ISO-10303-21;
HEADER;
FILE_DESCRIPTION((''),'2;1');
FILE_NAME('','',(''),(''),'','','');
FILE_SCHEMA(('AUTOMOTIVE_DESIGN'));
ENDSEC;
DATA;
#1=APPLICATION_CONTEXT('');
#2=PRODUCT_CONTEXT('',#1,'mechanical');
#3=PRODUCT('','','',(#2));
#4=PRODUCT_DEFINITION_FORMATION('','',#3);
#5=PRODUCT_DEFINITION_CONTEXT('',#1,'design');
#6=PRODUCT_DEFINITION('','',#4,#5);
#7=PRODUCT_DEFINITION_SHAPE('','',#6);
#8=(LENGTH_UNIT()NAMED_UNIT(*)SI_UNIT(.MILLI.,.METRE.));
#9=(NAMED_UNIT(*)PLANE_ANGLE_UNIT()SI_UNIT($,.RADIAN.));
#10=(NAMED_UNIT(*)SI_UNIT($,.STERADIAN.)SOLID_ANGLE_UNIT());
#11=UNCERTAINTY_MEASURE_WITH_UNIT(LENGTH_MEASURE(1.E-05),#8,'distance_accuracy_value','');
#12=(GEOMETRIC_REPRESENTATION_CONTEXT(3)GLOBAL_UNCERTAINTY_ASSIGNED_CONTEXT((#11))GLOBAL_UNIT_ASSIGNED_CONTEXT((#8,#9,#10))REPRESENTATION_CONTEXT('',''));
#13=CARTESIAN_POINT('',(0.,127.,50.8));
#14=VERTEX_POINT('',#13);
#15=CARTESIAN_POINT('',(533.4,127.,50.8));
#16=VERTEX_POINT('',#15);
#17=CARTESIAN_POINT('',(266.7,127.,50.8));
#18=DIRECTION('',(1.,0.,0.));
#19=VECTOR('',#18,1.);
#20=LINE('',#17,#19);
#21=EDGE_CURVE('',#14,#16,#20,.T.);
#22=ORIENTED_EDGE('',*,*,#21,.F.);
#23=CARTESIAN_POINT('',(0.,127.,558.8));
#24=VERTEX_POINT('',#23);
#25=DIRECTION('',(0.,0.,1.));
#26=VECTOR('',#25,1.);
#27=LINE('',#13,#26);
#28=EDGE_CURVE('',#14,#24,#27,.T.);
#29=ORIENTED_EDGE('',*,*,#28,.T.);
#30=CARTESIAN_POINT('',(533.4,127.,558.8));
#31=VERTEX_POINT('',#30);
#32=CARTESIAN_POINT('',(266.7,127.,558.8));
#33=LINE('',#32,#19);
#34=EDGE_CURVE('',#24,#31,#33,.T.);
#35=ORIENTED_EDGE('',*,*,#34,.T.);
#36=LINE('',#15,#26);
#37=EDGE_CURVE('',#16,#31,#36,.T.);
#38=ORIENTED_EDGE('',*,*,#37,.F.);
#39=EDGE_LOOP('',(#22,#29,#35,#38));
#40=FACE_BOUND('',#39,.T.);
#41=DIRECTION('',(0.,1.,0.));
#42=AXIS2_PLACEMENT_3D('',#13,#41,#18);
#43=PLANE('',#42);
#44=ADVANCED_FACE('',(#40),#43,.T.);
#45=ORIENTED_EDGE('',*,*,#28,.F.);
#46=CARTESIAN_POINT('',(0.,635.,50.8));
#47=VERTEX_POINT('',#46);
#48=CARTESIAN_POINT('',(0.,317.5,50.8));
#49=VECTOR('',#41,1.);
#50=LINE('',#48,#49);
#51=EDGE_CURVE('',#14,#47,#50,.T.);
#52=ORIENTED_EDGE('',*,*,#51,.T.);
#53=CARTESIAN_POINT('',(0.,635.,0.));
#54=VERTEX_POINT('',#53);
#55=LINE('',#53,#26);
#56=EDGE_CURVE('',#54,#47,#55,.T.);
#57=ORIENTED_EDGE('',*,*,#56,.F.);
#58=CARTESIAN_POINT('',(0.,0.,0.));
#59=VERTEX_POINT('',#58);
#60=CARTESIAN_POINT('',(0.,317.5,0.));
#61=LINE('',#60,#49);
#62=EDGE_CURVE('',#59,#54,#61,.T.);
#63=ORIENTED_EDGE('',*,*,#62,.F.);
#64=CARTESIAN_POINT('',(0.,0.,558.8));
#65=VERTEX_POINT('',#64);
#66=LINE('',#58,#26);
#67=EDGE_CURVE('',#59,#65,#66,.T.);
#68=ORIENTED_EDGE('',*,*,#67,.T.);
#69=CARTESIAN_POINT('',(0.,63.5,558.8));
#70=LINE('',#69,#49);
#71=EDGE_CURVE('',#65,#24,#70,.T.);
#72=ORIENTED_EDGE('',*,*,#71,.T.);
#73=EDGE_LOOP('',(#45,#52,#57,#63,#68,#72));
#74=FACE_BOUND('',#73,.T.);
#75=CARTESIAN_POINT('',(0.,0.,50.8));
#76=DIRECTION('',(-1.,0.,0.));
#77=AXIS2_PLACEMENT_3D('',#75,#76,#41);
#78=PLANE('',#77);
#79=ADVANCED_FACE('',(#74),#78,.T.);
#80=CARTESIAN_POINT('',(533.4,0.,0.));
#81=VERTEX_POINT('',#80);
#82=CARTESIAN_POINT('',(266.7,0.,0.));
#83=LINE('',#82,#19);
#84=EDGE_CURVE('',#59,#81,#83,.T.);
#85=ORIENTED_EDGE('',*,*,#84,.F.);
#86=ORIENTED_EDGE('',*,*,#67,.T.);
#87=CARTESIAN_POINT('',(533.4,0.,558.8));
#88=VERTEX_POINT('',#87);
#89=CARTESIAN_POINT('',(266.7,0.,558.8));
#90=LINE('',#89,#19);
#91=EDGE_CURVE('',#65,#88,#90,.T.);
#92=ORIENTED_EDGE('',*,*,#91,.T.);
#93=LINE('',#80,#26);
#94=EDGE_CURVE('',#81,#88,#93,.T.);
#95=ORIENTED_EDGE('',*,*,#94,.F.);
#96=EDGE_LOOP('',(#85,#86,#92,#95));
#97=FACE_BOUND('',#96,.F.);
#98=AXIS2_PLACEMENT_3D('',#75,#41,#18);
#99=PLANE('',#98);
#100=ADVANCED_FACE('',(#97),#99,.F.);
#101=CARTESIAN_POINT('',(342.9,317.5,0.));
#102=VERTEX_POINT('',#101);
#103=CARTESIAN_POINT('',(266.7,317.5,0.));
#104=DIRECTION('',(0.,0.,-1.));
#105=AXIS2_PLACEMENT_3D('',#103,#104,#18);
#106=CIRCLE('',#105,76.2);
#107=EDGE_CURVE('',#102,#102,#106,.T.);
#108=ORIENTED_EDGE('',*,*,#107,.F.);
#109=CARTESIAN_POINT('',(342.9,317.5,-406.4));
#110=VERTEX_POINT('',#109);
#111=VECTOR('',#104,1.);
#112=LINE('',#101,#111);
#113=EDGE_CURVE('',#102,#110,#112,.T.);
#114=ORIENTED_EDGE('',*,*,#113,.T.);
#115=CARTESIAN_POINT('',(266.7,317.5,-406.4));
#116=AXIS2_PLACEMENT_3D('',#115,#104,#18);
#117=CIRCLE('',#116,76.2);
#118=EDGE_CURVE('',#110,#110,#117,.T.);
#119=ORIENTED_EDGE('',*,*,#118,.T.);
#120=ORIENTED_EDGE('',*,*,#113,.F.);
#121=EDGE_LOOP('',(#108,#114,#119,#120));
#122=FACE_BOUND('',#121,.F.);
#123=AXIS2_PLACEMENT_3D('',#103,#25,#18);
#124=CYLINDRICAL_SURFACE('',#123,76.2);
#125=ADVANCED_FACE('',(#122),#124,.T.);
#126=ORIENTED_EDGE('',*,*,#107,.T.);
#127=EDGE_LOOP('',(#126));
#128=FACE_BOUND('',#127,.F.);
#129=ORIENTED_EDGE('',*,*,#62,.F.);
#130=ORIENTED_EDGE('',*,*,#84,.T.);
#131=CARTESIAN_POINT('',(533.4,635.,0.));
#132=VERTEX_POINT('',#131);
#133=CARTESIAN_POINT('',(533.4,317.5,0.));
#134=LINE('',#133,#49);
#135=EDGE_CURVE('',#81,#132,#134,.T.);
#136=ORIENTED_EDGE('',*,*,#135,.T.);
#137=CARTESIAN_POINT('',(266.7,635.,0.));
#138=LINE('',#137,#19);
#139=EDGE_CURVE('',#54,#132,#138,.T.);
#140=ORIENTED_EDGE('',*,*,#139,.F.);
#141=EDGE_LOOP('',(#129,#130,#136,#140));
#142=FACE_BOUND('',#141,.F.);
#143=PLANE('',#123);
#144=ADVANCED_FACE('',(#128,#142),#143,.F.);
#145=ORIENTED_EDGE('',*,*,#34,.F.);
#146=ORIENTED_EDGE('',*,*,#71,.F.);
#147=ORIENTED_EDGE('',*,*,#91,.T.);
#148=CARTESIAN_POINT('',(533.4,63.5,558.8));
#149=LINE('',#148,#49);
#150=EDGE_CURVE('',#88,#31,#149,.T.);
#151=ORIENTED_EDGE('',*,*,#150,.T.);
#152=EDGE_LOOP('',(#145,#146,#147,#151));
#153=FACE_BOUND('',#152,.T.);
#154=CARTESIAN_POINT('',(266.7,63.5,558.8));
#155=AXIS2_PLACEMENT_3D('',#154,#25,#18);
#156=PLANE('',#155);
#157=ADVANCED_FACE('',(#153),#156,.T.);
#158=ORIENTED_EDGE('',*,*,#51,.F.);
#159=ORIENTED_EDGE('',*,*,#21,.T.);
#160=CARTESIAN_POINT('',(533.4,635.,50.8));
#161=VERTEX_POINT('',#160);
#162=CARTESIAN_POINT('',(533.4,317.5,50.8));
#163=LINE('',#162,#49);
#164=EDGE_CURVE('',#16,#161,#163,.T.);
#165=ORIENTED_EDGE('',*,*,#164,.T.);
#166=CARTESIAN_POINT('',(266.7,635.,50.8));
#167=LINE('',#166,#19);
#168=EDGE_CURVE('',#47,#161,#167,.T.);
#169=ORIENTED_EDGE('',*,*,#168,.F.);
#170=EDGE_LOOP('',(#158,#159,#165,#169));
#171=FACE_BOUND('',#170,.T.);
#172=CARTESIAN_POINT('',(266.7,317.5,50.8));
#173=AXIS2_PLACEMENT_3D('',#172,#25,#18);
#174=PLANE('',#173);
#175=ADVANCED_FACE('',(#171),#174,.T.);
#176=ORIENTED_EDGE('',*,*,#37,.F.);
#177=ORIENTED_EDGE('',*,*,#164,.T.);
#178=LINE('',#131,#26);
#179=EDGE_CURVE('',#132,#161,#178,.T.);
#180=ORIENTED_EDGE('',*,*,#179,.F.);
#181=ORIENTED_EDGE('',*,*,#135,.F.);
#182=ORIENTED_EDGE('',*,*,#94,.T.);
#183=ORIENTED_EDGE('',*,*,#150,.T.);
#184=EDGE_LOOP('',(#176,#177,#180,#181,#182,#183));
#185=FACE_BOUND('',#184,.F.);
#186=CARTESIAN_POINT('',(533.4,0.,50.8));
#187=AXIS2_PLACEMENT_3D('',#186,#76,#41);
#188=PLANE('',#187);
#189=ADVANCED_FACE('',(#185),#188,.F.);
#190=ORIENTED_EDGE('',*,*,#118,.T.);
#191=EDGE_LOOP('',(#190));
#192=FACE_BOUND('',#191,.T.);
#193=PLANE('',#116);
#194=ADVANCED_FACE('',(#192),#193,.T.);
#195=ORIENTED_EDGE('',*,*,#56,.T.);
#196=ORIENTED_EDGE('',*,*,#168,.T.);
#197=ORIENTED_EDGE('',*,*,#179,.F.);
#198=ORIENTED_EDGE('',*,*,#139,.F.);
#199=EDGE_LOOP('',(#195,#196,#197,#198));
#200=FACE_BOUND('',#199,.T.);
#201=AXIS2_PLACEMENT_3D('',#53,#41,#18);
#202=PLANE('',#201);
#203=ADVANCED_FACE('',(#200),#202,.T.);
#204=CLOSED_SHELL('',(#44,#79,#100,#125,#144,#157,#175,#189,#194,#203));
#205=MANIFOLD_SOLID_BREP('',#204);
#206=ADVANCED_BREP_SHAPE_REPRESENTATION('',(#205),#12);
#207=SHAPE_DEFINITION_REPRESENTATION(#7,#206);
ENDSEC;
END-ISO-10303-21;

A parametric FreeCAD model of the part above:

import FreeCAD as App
import Part
import Sketcher
Q = App.Units.Quantity


def add_polygon(sketch, points):
    """Adds a closed chain of lines whose ends are joined by coincident constraints."""
    first, n = sketch.GeometryCount, len(points)
    for a, b in zip(points, points[1:] + points[:1]):
        sketch.addGeometry(Part.LineSegment(App.Vector(*a, 0), App.Vector(*b, 0)), False)
    for i in range(n):
        sketch.addConstraint(Sketcher.Constraint("Coincident", first + i, 2, first + (i + 1) % n, 1))

doc = App.newDocument("Part")
body = doc.addObject("PartDesign::Body", "Body")

sketch1 = body.newObject("Sketcher::SketchObject", "Sketch")
sketch1.AttachmentSupport = (doc.getObject("XY_Plane"), [""])
sketch1.MapMode = "FlatFace"
add_polygon(sketch1, [(0, 635), (0, 0), (533.4, 0), (533.4, 635)])
sketch1.addConstraint([
    Sketcher.Constraint("Vertical", 0),
    Sketcher.Constraint("Horizontal", 1),
    Sketcher.Constraint("Vertical", 2),
    Sketcher.Constraint("Horizontal", 3),
    Sketcher.Constraint("Coincident", 0, 2, -1, 1),
    Sketcher.Constraint("DistanceX", 1, 1, 1, 2, Q("21 in")),
    Sketcher.Constraint("DistanceY", 0, 2, 0, 1, Q("25 in")),
])
pad1 = body.newObject("PartDesign::Pad", "Pad")
pad1.Profile = sketch1
pad1.Length = Q("2 in")

sketch2 = body.newObject("Sketcher::SketchObject", "Sketch001")
sketch2.AttachmentSupport = (doc.getObject("XY_Plane"), [""])
sketch2.MapMode = "FlatFace"
sketch2.AttachmentOffset = App.Placement(App.Vector(0, 0, 2 * 25.4), App.Rotation())
add_polygon(sketch2, [(0, 127), (0, 0), (533.4, 0), (533.4, 127)])
sketch2.addConstraint([
    Sketcher.Constraint("Vertical", 0),
    Sketcher.Constraint("Horizontal", 1),
    Sketcher.Constraint("Vertical", 2),
    Sketcher.Constraint("Horizontal", 3),
    Sketcher.Constraint("Coincident", 0, 2, -1, 1),
    Sketcher.Constraint("DistanceX", 1, 1, 1, 2, Q("21 in")),
    Sketcher.Constraint("DistanceY", 0, 2, 0, 1, Q("5 in")),
])
pad2 = body.newObject("PartDesign::Pad", "Pad001")
pad2.Profile = sketch2
pad2.Length = Q("20 in")

sketch3 = body.newObject("Sketcher::SketchObject", "Sketch002")
sketch3.AttachmentSupport = (doc.getObject("XY_Plane"), [""])
sketch3.MapMode = "FlatFace"
sketch3.addGeometry(Part.Circle(App.Vector(266.7, 317.5, 0), App.Vector(0, 0, 1), 76.2), False)
sketch3.addConstraint([
    Sketcher.Constraint("Diameter", 0, Q("6 in")),
    Sketcher.Constraint("DistanceX", -1, 1, 0, 3, Q("10.5 in")),
    Sketcher.Constraint("DistanceY", -1, 1, 0, 3, Q("12.5 in")),
])
pad3 = body.newObject("PartDesign::Pad", "Pad002")
pad3.Profile = sketch3
pad3.Length = Q("16 in")
pad3.Reversed = True

doc.recompute()
